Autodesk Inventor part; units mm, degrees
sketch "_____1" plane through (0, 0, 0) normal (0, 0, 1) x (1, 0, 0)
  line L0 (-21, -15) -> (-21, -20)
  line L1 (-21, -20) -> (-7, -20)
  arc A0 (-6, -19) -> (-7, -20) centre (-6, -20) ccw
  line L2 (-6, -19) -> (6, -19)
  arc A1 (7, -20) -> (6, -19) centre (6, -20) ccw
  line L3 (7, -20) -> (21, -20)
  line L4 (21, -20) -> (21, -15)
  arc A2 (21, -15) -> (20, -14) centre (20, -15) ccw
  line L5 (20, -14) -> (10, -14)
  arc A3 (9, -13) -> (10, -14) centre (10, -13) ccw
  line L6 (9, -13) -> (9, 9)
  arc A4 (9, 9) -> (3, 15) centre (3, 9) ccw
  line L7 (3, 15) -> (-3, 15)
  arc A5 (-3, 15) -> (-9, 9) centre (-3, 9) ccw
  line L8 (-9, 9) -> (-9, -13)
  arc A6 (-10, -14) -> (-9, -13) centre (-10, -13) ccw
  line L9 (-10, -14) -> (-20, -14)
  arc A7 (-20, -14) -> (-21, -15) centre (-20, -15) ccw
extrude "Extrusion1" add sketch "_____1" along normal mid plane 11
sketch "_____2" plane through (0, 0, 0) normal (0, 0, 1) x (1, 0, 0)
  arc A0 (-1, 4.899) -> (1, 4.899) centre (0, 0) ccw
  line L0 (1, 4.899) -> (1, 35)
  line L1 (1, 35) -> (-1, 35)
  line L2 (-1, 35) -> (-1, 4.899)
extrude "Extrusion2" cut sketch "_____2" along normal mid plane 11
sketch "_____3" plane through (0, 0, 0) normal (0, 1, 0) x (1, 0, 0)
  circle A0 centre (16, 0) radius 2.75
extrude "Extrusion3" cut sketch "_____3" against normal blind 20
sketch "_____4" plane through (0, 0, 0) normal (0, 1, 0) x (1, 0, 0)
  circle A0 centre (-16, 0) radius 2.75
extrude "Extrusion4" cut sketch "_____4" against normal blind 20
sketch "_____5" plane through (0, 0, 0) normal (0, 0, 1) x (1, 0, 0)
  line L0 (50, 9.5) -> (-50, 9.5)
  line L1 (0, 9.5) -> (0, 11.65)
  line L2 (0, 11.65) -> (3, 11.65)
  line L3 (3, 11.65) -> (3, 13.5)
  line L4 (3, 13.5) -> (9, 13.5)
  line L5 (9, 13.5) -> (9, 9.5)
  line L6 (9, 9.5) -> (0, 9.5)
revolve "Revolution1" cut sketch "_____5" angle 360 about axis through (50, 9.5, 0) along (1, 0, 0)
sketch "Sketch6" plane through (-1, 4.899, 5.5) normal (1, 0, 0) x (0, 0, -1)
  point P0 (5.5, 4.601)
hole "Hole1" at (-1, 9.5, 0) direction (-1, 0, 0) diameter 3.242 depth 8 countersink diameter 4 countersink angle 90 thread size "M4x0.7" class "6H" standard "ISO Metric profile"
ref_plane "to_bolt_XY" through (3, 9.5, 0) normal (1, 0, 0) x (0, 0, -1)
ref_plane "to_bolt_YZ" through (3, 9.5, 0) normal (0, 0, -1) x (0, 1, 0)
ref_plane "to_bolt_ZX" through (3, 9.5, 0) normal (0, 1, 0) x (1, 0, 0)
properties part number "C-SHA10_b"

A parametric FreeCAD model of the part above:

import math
import FreeCAD as App
import Part
import Sketcher
from FreeCAD import Vector

doc = App.newDocument("Part")
body = doc.addObject("PartDesign::Body", "Body")

# Sketch on XY plane
sketch1 = body.newObject("Sketcher::SketchObject", "Sketch")
sketch1.AttachmentSupport = (doc.getObject("XY_Plane"), [""])
sketch1.MapMode = "FlatFace"
sketch1.addGeometry([
    Part.ArcOfCircle(Part.Circle(Vector(-20, -15, 0), Vector(0, 0, 1), 1), math.radians(90), math.radians(180)),  # 0
    Part.LineSegment(Vector(-21, -15, 0), Vector(-21, -20, 0)),  # 1
    Part.LineSegment(Vector(-21, -20, 0), Vector(-7, -20, 0)),  # 2
    Part.ArcOfCircle(Part.Circle(Vector(-6, -20, 0), Vector(0, 0, 1), 1), math.radians(90), math.radians(180)),  # 3
    Part.LineSegment(Vector(-6, -19, 0), Vector(6, -19, 0)),  # 4
    Part.ArcOfCircle(Part.Circle(Vector(6, -20, 0), Vector(0, 0, 1), 1), math.radians(0), math.radians(90)),  # 5
    Part.LineSegment(Vector(7, -20, 0), Vector(21, -20, 0)),  # 6
    Part.LineSegment(Vector(21, -20, 0), Vector(21, -15, 0)),  # 7
    Part.ArcOfCircle(Part.Circle(Vector(20, -15, 0), Vector(0, 0, 1), 1), math.radians(0), math.radians(90)),  # 8
    Part.LineSegment(Vector(20, -14, 0), Vector(10, -14, 0)),  # 9
    Part.ArcOfCircle(Part.Circle(Vector(10, -13, 0), Vector(0, 0, 1), 1), math.radians(180), math.radians(270)),  # 10
    Part.LineSegment(Vector(9, -13, 0), Vector(9, 9, 0)),  # 11
    Part.ArcOfCircle(Part.Circle(Vector(3, 9, 0), Vector(0, 0, 1), 6), math.radians(0), math.radians(90)),  # 12
    Part.LineSegment(Vector(3, 15, 0), Vector(-3, 15, 0)),  # 13
    Part.ArcOfCircle(Part.Circle(Vector(-3, 9, 0), Vector(0, 0, 1), 6), math.radians(90), math.radians(180)),  # 14
    Part.LineSegment(Vector(-9, 9, 0), Vector(-9, -13, 0)),  # 15
    Part.ArcOfCircle(Part.Circle(Vector(-10, -13, 0), Vector(0, 0, 1), 1), math.radians(-90), math.radians(0)),  # 16
    Part.LineSegment(Vector(-10, -14, 0), Vector(-20, -14, 0)),  # 17
], False)
sketch1.addConstraint([
    Sketcher.Constraint("Tangent", 0, 2, 1, 1),
    Sketcher.Constraint("Coincident", 1, 2, 2, 1),
    Sketcher.Constraint("Coincident", 2, 2, 3, 2),
    Sketcher.Constraint("Tangent", 3, 1, 4, 1),
    Sketcher.Constraint("Tangent", 4, 2, 5, 2),
    Sketcher.Constraint("Coincident", 5, 1, 6, 1),
    Sketcher.Constraint("Coincident", 6, 2, 7, 1),
    Sketcher.Constraint("Tangent", 7, 2, 8, 1),
    Sketcher.Constraint("Tangent", 8, 2, 9, 1),
    Sketcher.Constraint("Tangent", 9, 2, 10, 2),
    Sketcher.Constraint("Tangent", 10, 1, 11, 1),
    Sketcher.Constraint("Tangent", 11, 2, 12, 1),
    Sketcher.Constraint("Tangent", 12, 2, 13, 1),
    Sketcher.Constraint("Tangent", 13, 2, 14, 1),
    Sketcher.Constraint("Tangent", 14, 2, 15, 1),
    Sketcher.Constraint("Tangent", 15, 2, 16, 2),
    Sketcher.Constraint("Tangent", 16, 1, 17, 1),
    Sketcher.Constraint("Tangent", 17, 2, 0, 1),
    Sketcher.Constraint("Vertical", 1),
    Sketcher.Constraint("Horizontal", 2),
    Sketcher.Constraint("Horizontal", 4),
    Sketcher.Constraint("Horizontal", 6),
    Sketcher.Constraint("Vertical", 7),
    Sketcher.Constraint("Horizontal", 9),
    Sketcher.Constraint("Vertical", 11),
    Sketcher.Constraint("Horizontal", 13),
    Sketcher.Constraint("Vertical", 15),
    Sketcher.Constraint("Horizontal", 17),
    Sketcher.Constraint("Equal", 0, 3),
    Sketcher.Constraint("Equal", 3, 5),
    Sketcher.Constraint("Equal", 5, 8),
    Sketcher.Constraint("Equal", 8, 10),
    Sketcher.Constraint("Equal", 12, 14),
    Sketcher.Constraint("Equal", 10, 16),
    Sketcher.Constraint("Symmetric", 0, 3, 8, 3, -2),
    Sketcher.Constraint("Symmetric", 2, 2, 5, 1, -2),
    Sketcher.Constraint("Horizontal", 5, 3, 1, 2),
    Sketcher.Constraint("Equal", 9, 17),
    Sketcher.Constraint("Radius", 0, 1.0),
    Sketcher.Constraint("Radius", 12, 6.0),
    Sketcher.Constraint("DistanceX", 2, 1, 2, 2, 14.0),
    Sketcher.Constraint("DistanceX", 4, 1, 4, 2, 12.0),
    Sketcher.Constraint("DistanceX", 9, 2, 9, 1, 10.0),
    Sketcher.Constraint("DistanceY", 1, 2, 1, 1, 5.0),
    Sketcher.Constraint("DistanceY", 11, 1, 11, 2, 22.0),
    Sketcher.Constraint("DistanceY", 0, 3, -1, 1, 15.0),
])
pad1 = body.newObject("PartDesign::Pad", "Pad")
pad1.Profile = sketch1
pad1.Length = 11
pad1.Midplane = True

# Sketch on XY plane
sketch2 = body.newObject("Sketcher::SketchObject", "Sketch001")
sketch2.AttachmentSupport = (doc.getObject("XY_Plane"), [""])
sketch2.MapMode = "FlatFace"
sketch2.addGeometry([
    Part.LineSegment(Vector(-1, 35, 0), Vector(-1, 4.899, 0)),
    Part.ArcOfCircle(Part.Circle(Vector(0, 0, 0), Vector(0, 0, 1), 5.00002), math.radians(101.536912), math.radians(438.463088)),
    Part.LineSegment(Vector(1, 4.899, 0), Vector(1, 35, 0)),
    Part.LineSegment(Vector(1, 35, 0), Vector(-1, 35, 0)),
], False)
sketch2.addConstraint([
    Sketcher.Constraint("Coincident", 0, 2, 1, 1),
    Sketcher.Constraint("Coincident", 1, 2, 2, 1),
    Sketcher.Constraint("Coincident", 2, 2, 3, 1),
    Sketcher.Constraint("Coincident", 3, 2, 0, 1),
    Sketcher.Constraint("Vertical", 0),
    Sketcher.Constraint("Vertical", 2),
    Sketcher.Constraint("Horizontal", 3),
    Sketcher.Constraint("Coincident", 1, 3, -1, 1),
    Sketcher.Constraint("Horizontal", 0, 2, 1, 2),
    Sketcher.Constraint("Radius", 1, 5.0),
    Sketcher.Constraint("DistanceX", 3, 2, 3, 1, 2.0),
    Sketcher.Constraint("DistanceY", -1, 1, 2, 2, 35.0),
])
pocket1 = body.newObject("PartDesign::Pocket", "Pocket")
pocket1.Profile = sketch2
pocket1.Length = 11
pocket1.Midplane = True

# Sketch on XZ plane
sketch3 = body.newObject("Sketcher::SketchObject", "Sketch002")
sketch3.AttachmentSupport = (doc.getObject("XZ_Plane"), [""])
sketch3.MapMode = "FlatFace"
sketch3.addGeometry(Part.Circle(Vector(16, 0, 0), Vector(0, 0, 1), 2.75), False)
sketch3.addConstraint([
    Sketcher.Constraint("PointOnObject", 0, 3, -1),
    Sketcher.Constraint("Diameter", 0, 5.5),
    Sketcher.Constraint("DistanceX", -1, 1, 0, 3, 16.0),
])
pocket2 = body.newObject("PartDesign::Pocket", "Pocket001")
pocket2.Profile = sketch3
pocket2.Length = 20
pocket2.Reversed = True

# Sketch on XZ plane
sketch4 = body.newObject("Sketcher::SketchObject", "Sketch003")
sketch4.AttachmentSupport = (doc.getObject("XZ_Plane"), [""])
sketch4.MapMode = "FlatFace"
sketch4.addGeometry(Part.Circle(Vector(-16, 0, 0), Vector(0, 0, 1), 2.75), False)
sketch4.addConstraint([
    Sketcher.Constraint("PointOnObject", 0, 3, -1),
    Sketcher.Constraint("Diameter", 0, 5.5),
    Sketcher.Constraint("DistanceX", 0, 3, -1, 1, 16.0),
])
pocket3 = body.newObject("PartDesign::Pocket", "Pocket002")
pocket3.Profile = sketch4
pocket3.Length = 20
pocket3.Reversed = True

# Sketch on XY plane
sketch5 = body.newObject("Sketcher::SketchObject", "Sketch004")
sketch5.AttachmentSupport = (doc.getObject("XY_Plane"), [""])
sketch5.MapMode = "FlatFace"
sketch5.addGeometry([
    Part.LineSegment(Vector(0, 9.5, 0), Vector(9, 9.5, 0)),  # 0
    Part.LineSegment(Vector(9, 9.5, 0), Vector(9, 13.5, 0)),  # 1
    Part.LineSegment(Vector(9, 13.5, 0), Vector(3, 13.5, 0)),  # 2
    Part.LineSegment(Vector(3, 13.5, 0), Vector(3, 11.65, 0)),  # 3
    Part.LineSegment(Vector(3, 11.65, 0), Vector(0, 11.65, 0)),  # 4
    Part.LineSegment(Vector(0, 11.65, 0), Vector(0, 9.5, 0)),  # 5
], False)
sketch5.addGeometry(Part.LineSegment(Vector(0, 9.5, 0), Vector(9, 9.5, 0)), True)  # axis
sketch5.addConstraint([
    Sketcher.Constraint("Coincident", 0, 2, 1, 1),
    Sketcher.Constraint("Coincident", 1, 2, 2, 1),
    Sketcher.Constraint("Coincident", 2, 2, 3, 1),
    Sketcher.Constraint("Coincident", 3, 2, 4, 1),
    Sketcher.Constraint("Coincident", 4, 2, 5, 1),
    Sketcher.Constraint("Coincident", 5, 2, 0, 1),
    Sketcher.Constraint("Horizontal", 0),
    Sketcher.Constraint("Vertical", 1),
    Sketcher.Constraint("Horizontal", 2),
    Sketcher.Constraint("Vertical", 3),
    Sketcher.Constraint("Horizontal", 4),
    Sketcher.Constraint("Vertical", 5),
    Sketcher.Constraint("Horizontal", 6),
    Sketcher.Constraint("Coincident", 6, 1, 5, 2),
    Sketcher.Constraint("PointOnObject", 4, 2, -2),
    Sketcher.Constraint("Vertical", 1, 2, 6, 2),
    Sketcher.Constraint("DistanceX", 0, 1, 0, 2, 9.0),
    Sketcher.Constraint("DistanceX", 2, 2, 2, 1, 6.0),
    Sketcher.Constraint("DistanceY", 1, 1, 1, 2, 4.0),
    Sketcher.Constraint("DistanceY", 3, 2, 3, 1, 1.85),
    Sketcher.Constraint("DistanceY", -1, 1, 0, 2, 9.5),
])
groove = body.newObject("PartDesign::Groove", "Groove")
groove.Profile = sketch5
groove.ReferenceAxis = (sketch5, ["Axis0"])
groove.Angle = 360

# Sketch on YZ plane
sketch6 = body.newObject("Sketcher::SketchObject", "Sketch005")
sketch6.AttachmentSupport = (doc.getObject("YZ_Plane"), [""])
sketch6.MapMode = "FlatFace"
sketch6.AttachmentOffset = App.Placement(Vector(0, 0, -1), App.Rotation())
sketch6.addGeometry(Part.Circle(Vector(9.5, 0, 0), Vector(0, 0, 1), 1.621), False)
sketch6.addConstraint([
    Sketcher.Constraint("PointOnObject", 0, 3, -1),
    Sketcher.Constraint("Diameter", 0, 3.242),
    Sketcher.Constraint("DistanceX", -1, 1, 0, 3, 9.5),
])
doc.recompute()
hole = body.newObject("PartDesign::Hole", "Hole")
hole.Profile = sketch6
hole.ThreadType = "None"
hole.Diameter = 3.242
hole.DepthType = "Dimension"
hole.Depth = 8
hole.DrillPoint = "Flat"
hole.HoleCutType = "Countersink"
hole.HoleCutDiameter = 4
hole.HoleCutCountersinkAngle = 90

doc.recompute()
